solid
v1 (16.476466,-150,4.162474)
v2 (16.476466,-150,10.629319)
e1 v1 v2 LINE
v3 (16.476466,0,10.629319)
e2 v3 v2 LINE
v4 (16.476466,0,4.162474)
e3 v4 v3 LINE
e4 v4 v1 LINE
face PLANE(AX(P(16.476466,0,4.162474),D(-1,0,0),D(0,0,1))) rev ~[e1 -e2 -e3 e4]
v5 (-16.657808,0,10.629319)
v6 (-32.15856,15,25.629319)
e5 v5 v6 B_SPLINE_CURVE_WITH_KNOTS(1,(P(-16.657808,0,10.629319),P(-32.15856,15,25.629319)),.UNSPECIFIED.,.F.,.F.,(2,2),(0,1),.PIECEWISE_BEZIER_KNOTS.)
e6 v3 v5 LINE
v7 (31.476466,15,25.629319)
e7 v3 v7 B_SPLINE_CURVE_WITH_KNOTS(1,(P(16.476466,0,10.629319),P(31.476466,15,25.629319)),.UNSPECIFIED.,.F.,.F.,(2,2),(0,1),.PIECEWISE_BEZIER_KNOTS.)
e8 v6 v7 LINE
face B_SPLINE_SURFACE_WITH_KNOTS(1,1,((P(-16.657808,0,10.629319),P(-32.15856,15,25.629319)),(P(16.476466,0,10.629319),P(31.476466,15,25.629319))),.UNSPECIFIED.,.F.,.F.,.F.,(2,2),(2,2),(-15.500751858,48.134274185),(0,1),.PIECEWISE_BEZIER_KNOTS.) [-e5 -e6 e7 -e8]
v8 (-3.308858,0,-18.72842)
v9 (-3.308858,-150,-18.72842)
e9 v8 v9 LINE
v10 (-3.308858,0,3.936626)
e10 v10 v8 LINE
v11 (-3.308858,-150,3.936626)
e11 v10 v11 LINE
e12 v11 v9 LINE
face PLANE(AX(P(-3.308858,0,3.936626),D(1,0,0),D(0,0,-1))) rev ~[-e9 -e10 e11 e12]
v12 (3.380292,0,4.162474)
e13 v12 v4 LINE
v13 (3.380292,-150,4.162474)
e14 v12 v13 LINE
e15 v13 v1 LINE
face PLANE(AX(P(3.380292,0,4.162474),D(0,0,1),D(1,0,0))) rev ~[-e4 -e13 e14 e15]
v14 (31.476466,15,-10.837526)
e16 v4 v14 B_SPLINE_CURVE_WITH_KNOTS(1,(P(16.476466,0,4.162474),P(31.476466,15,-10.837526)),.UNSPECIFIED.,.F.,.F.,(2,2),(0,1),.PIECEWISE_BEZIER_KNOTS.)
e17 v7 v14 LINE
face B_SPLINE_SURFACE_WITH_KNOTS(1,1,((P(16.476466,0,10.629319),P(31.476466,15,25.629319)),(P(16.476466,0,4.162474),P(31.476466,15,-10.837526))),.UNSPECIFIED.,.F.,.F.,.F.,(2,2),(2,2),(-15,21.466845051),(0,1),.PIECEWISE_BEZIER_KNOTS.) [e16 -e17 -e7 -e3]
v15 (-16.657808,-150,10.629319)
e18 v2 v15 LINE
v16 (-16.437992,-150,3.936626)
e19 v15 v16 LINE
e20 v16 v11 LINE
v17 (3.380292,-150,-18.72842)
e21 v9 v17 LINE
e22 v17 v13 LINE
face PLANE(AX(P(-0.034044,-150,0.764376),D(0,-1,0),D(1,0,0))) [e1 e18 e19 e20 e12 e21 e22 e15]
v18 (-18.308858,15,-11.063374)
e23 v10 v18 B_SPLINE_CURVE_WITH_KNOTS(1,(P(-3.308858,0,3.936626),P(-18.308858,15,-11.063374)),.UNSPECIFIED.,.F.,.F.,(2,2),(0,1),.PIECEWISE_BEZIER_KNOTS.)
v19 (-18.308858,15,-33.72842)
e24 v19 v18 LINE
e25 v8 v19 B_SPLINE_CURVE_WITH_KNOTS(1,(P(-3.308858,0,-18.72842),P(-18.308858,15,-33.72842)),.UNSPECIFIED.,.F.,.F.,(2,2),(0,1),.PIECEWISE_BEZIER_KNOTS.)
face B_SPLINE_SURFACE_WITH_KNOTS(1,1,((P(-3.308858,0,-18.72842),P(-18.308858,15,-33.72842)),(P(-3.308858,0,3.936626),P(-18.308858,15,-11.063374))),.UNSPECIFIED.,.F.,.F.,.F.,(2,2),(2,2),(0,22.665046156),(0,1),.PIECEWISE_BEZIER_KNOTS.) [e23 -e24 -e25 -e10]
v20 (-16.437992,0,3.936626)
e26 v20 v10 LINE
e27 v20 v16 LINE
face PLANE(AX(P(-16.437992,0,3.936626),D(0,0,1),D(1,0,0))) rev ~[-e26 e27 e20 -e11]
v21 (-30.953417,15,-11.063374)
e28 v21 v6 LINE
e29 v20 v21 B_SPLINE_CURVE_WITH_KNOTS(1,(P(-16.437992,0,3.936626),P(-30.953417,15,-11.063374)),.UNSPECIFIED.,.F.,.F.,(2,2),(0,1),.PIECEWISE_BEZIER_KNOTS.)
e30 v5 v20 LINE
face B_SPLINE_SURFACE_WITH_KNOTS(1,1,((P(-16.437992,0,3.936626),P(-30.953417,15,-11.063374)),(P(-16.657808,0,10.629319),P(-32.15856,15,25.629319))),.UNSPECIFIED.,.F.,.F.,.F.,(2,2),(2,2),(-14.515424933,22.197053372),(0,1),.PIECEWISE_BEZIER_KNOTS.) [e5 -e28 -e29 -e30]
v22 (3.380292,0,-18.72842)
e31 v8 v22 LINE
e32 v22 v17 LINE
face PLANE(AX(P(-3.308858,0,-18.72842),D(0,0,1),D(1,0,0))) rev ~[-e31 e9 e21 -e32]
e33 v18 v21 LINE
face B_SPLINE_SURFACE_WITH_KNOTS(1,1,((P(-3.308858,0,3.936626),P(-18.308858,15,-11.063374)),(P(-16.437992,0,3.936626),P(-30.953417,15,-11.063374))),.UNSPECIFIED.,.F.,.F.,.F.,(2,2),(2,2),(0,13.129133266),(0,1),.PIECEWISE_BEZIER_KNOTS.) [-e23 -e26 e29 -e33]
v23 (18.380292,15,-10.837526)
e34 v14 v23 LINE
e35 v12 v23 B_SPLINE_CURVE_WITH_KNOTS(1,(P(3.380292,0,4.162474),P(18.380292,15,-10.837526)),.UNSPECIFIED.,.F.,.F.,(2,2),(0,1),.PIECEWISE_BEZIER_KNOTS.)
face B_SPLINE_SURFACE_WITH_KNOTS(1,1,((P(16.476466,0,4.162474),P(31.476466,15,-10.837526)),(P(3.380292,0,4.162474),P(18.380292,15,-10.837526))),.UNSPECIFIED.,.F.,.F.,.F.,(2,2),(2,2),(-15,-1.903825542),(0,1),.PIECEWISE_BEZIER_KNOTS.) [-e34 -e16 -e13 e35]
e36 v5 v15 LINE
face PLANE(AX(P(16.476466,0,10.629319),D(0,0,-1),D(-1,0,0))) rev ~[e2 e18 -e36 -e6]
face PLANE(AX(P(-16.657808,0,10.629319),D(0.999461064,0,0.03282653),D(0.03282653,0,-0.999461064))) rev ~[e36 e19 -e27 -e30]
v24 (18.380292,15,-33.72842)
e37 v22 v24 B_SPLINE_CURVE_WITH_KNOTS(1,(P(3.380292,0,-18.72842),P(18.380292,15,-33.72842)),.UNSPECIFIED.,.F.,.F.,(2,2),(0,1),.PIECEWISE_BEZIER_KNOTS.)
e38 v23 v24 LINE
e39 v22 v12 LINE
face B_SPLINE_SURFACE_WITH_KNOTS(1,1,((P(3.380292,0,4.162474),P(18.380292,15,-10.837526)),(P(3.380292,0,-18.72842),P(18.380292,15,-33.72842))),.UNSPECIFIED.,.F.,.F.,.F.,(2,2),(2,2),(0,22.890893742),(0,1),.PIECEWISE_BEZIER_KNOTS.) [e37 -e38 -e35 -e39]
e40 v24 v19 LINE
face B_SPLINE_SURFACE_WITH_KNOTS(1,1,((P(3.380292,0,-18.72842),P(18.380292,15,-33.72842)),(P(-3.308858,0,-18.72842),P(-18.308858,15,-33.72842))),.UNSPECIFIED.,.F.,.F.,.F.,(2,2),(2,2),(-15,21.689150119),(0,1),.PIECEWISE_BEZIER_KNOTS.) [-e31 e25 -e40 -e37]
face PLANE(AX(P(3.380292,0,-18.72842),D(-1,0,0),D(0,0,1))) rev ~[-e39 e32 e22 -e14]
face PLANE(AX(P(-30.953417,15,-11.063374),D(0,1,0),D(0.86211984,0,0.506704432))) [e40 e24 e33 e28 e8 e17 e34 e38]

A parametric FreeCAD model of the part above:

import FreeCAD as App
import Part
import Sketcher
Q = App.Units.Quantity


def add_polygon(sketch, points):
    """Adds a closed chain of lines whose ends are joined by coincident constraints."""
    first, n = sketch.GeometryCount, len(points)
    for a, b in zip(points, points[1:] + points[:1]):
        sketch.addGeometry(Part.LineSegment(App.Vector(*a, 0), App.Vector(*b, 0)), False)
    for i in range(n):
        sketch.addConstraint(Sketcher.Constraint("Coincident", first + i, 2, first + (i + 1) % n, 1))

doc = App.newDocument("Part")
params = doc.addObject("Spreadsheet::Sheet", "Params")
for row, (alias, value) in enumerate([
    ("pad1_length", "150 mm"),
    ("pad2_length", "15 mm"),
    ("pad2_taper", "45 deg"),
], start=1):
    params.set(f"A{row}", alias)
    params.set(f"B{row}", "=" + value)
    params.setAlias(f"B{row}", alias)

body = doc.addObject("PartDesign::Body", "Body")

# Sketch on XZ plane
sketch1 = doc.addObject("Sketcher::SketchObject", "Sketch")
body.addObject(sketch1)
sketch1.AttachmentSupport = (doc.XZ_Plane, [""])
sketch1.MapMode = "FlatFace"
add_polygon(sketch1, [(16, 11), (-17, 11), (-16, 4), (-3, 4), (-3, -19), (3, -19), (3, 4), (16, 4)])  # lines 0-7
sketch1.addConstraint([
    Sketcher.Constraint("Horizontal", 0),
    Sketcher.Constraint("Horizontal", 2),
    Sketcher.Constraint("Vertical", 3),
    Sketcher.Constraint("Horizontal", 4),
    Sketcher.Constraint("Vertical", 5),
    Sketcher.Constraint("Horizontal", 6),
    Sketcher.Constraint("Vertical", 7),
    Sketcher.Constraint("Distance", 1, Q("6.696302 mm")),
    Sketcher.Constraint("DistanceX", 4, 1, 4, 2, Q("6.68915 mm")),
    Sketcher.Constraint("DistanceX", 0, 2, 4, 2, Q("20.0381 mm")),
    Sketcher.Constraint("DistanceX", 0, 2, 0, 1, Q("33.134274 mm")),
    Sketcher.Constraint("DistanceX", 2, 1, 2, 2, Q("13.129133 mm")),
    Sketcher.Constraint("DistanceY", 3, 2, 3, 1, Q("22.665046 mm")),
    Sketcher.Constraint("DistanceY", 5, 1, 5, 2, Q("22.890894 mm")),
    Sketcher.Constraint("DistanceY", -1, 1, 0, 2, Q("10.629319 mm")),
    Sketcher.Constraint("DistanceX", 1, 2, -1, 1, Q("16.437992 mm")),
])
pad1 = doc.addObject("PartDesign::Pad", "Pad")
body.addObject(pad1)
pad1.Profile = sketch1
pad1.setExpression("Length", "Params.pad1_length")

# Sketch on XZ plane
sketch2 = doc.addObject("Sketcher::SketchObject", "Sketch001")
body.addObject(sketch2)
sketch2.AttachmentSupport = (doc.XZ_Plane, [""])
sketch2.MapMode = "FlatFace"
add_polygon(sketch2, [(-16, 4), (-17, 11), (16, 11), (16, 4), (3, 4), (3, -19), (-3, -19), (-3, 4)])  # lines 0-7
sketch2.addConstraint([
    Sketcher.Constraint("Horizontal", 1),
    Sketcher.Constraint("Vertical", 2),
    Sketcher.Constraint("Horizontal", 3),
    Sketcher.Constraint("Vertical", 4),
    Sketcher.Constraint("Horizontal", 5),
    Sketcher.Constraint("Vertical", 6),
    Sketcher.Constraint("Horizontal", 7),
    Sketcher.Constraint("Distance", 0, Q("6.696302 mm")),
    Sketcher.Constraint("DistanceX", 5, 2, 5, 1, Q("6.68915 mm")),
    Sketcher.Constraint("DistanceX", 0, 2, 3, 2, Q("20.0381 mm")),
    Sketcher.Constraint("DistanceX", 1, 1, 1, 2, Q("33.134274 mm")),
    Sketcher.Constraint("DistanceX", 7, 2, 7, 1, Q("13.129133 mm")),
    Sketcher.Constraint("DistanceY", 2, 2, 2, 1, Q("6.466845 mm")),
    Sketcher.Constraint("DistanceY", 4, 2, 4, 1, Q("22.890894 mm")),
    Sketcher.Constraint("DistanceY", -1, 1, 0, 2, Q("10.629319 mm")),
    Sketcher.Constraint("DistanceX", -1, 1, 3, 2, Q("3.380292 mm")),
])
pad2 = doc.addObject("PartDesign::Pad", "Pad001")
body.addObject(pad2)
pad2.Profile = sketch2
pad2.setExpression("Length", "Params.pad2_length")
pad2.Reversed = True
pad2.setExpression("TaperAngle", "Params.pad2_taper")

doc.recompute()
